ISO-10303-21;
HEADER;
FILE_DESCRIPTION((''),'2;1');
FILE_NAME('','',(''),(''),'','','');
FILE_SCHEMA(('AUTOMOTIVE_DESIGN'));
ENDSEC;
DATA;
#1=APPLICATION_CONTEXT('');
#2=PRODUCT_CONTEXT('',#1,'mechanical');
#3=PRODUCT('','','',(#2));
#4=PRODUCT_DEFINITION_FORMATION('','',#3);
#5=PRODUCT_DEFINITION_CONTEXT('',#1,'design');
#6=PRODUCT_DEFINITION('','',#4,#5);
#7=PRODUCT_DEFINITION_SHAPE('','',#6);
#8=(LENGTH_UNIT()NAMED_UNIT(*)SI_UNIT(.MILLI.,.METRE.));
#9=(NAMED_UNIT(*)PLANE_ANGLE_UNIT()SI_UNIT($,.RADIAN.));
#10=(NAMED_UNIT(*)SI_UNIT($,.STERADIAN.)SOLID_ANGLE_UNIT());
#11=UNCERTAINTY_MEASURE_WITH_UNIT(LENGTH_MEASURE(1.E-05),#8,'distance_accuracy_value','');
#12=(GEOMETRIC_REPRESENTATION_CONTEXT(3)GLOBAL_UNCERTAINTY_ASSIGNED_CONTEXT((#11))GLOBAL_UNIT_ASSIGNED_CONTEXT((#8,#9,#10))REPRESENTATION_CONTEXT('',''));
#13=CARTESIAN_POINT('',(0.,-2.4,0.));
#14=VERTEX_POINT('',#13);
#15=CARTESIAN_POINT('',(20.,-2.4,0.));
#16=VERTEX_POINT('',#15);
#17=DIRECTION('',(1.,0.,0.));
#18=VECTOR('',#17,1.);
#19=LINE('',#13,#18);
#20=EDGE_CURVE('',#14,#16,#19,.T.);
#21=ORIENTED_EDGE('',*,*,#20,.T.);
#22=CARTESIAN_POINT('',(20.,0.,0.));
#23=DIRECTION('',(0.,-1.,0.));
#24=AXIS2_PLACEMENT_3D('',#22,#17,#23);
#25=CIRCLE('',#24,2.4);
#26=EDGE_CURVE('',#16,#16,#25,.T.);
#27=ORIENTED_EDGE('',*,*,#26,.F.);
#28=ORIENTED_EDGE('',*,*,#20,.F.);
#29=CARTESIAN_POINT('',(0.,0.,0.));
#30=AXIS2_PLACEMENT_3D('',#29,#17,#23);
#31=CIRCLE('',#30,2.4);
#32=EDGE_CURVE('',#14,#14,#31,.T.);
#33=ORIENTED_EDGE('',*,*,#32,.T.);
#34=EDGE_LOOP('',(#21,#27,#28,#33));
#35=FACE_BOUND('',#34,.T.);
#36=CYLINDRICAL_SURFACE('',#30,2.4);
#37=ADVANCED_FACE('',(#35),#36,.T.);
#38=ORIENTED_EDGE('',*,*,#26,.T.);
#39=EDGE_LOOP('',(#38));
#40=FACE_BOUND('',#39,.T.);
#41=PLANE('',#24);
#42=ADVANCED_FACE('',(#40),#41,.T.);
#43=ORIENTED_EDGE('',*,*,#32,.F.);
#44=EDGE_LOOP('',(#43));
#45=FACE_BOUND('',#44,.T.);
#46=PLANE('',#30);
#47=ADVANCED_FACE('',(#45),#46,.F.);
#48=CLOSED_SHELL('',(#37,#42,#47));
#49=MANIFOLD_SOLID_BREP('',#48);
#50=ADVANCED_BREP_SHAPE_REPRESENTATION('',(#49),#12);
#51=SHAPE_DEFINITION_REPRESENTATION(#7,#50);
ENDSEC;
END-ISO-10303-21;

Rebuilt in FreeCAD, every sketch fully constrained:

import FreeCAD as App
import Part
import Sketcher


def add_polygon(sketch, points):
    """Adds a closed chain of lines whose ends are joined by coincident constraints."""
    first, n = sketch.GeometryCount, len(points)
    for a, b in zip(points, points[1:] + points[:1]):
        sketch.addGeometry(Part.LineSegment(App.Vector(*a, 0), App.Vector(*b, 0)), False)
    for i in range(n):
        sketch.addConstraint(Sketcher.Constraint("Coincident", first + i, 2, first + (i + 1) % n, 1))

doc = App.newDocument("Part")
body = doc.addObject("PartDesign::Body", "Body")

# Sketch on XY plane
sketch1 = doc.addObject("Sketcher::SketchObject", "Sketch")
body.addObject(sketch1)
sketch1.AttachmentSupport = (doc.XY_Plane, [""])
sketch1.MapMode = "FlatFace"
add_polygon(sketch1, [(20, 0), (0, 0), (0, -2.4), (20, -2.4)])  # lines 0-3
sketch1.addConstraint([
    Sketcher.Constraint("Horizontal", 0),
    Sketcher.Constraint("Vertical", 1),
    Sketcher.Constraint("Horizontal", 2),
    Sketcher.Constraint("Vertical", 3),
    Sketcher.Constraint("Coincident", 0, 2, -1, 1),
    Sketcher.Constraint("DistanceX", 0, 2, 0, 1, 20.0),
    Sketcher.Constraint("DistanceY", 1, 2, 1, 1, 2.4),
])
revolution = doc.addObject("PartDesign::Revolution", "Revolution")
body.addObject(revolution)
revolution.Profile = sketch1
revolution.ReferenceAxis = (sketch1, ["H_Axis"])
revolution.Angle = 360

doc.recompute()
